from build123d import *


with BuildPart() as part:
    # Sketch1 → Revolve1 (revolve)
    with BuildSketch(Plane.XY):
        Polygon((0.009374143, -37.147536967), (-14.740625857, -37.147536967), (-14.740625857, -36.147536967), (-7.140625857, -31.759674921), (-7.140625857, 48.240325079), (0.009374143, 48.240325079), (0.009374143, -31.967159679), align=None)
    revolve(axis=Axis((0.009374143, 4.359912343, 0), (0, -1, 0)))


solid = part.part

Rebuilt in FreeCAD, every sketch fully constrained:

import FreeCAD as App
import Part
import Sketcher
Q = App.Units.Quantity

doc = App.newDocument("Part")
params = doc.addObject("Spreadsheet::Sheet", "Params")
for row, (alias, value) in enumerate([
    ("sketch1_height", "80 mm"),
    ("sketch1_height2", "1 mm"),
    ("sketch1_width", "14.75 mm"),
    ("sketch1_width2", "7.15 mm"),
    ("revolution_angle", "360 deg"),
], start=1):
    params.set(f"A{row}", alias)
    params.set(f"B{row}", "=" + value)
    params.setAlias(f"B{row}", alias)

body = doc.addObject("PartDesign::Body", "Body")

# Sketch on XY plane
sketch1 = body.newObject("Sketcher::SketchObject", "Sketch")
sketch1.AttachmentSupport = (doc.getObject("XY_Plane"), [""])
sketch1.MapMode = "FlatFace"
sketch1.addGeometry([
    Part.LineSegment(App.Vector(-14.7, -37.1, 0), App.Vector(0, -37.1, 0)),  # 0
    Part.LineSegment(App.Vector(0, -37.1, 0), App.Vector(0, 48.2, 0)),  # 1
    Part.LineSegment(App.Vector(0, 48.2, 0), App.Vector(-7.1, 48.2, 0)),  # 2
    Part.LineSegment(App.Vector(-7.1, 48.2, 0), App.Vector(-7.1, -31.8, 0)),  # 3
    Part.LineSegment(App.Vector(-7.1, -31.8, 0), App.Vector(-14.7, -36.1, 0)),  # 4
    Part.LineSegment(App.Vector(-14.7, -36.1, 0), App.Vector(-14.7, -37.1, 0)),  # 5
], False)
sketch1.addGeometry(Part.LineSegment(App.Vector(0, 48.2, 0), App.Vector(0, -37.1, 0)), True)  # axis
sketch1.addConstraint([
    Sketcher.Constraint("Coincident", 0, 2, 1, 1),
    Sketcher.Constraint("Coincident", 1, 2, 2, 1),
    Sketcher.Constraint("Coincident", 2, 2, 3, 1),
    Sketcher.Constraint("Coincident", 3, 2, 4, 1),
    Sketcher.Constraint("Coincident", 4, 2, 5, 1),
    Sketcher.Constraint("Coincident", 5, 2, 0, 1),
    Sketcher.Constraint("Horizontal", 0),
    Sketcher.Constraint("Vertical", 1),
    Sketcher.Constraint("Horizontal", 2),
    Sketcher.Constraint("Vertical", 3),
    Sketcher.Constraint("Vertical", 5),
    Sketcher.Constraint("Vertical", 6),
    Sketcher.Constraint("Coincident", 6, 1, 1, 2),
    Sketcher.Constraint("Horizontal", 5, 2, 6, 2),
    Sketcher.Constraint("DistanceY", 3, 2, 3, 1, Q("80 mm")),
    Sketcher.Constraint("DistanceY", 5, 2, 5, 1, Q("1 mm")),
    Sketcher.Constraint("Angle", 4, Q("-150 deg")),
    Sketcher.Constraint("DistanceX", 0, 1, 0, 2, Q("14.75 mm")),
    Sketcher.Constraint("DistanceX", 2, 2, 2, 1, Q("7.15 mm")),
    Sketcher.Constraint("DistanceX", -1, 1, 0, 2, Q("0.009374 mm")),
    Sketcher.Constraint("DistanceY", 0, 2, -1, 1, Q("37.147537 mm")),
])
sketch1.setExpression("Constraints[14]", "Params.sketch1_height")
sketch1.setExpression("Constraints[15]", "Params.sketch1_height2")
sketch1.setExpression("Constraints[17]", "Params.sketch1_width")
sketch1.setExpression("Constraints[18]", "Params.sketch1_width2")
revolution = body.newObject("PartDesign::Revolution", "Revolution")
revolution.Profile = sketch1
revolution.ReferenceAxis = (sketch1, ["Axis0"])
revolution.setExpression("Angle", "Params.revolution_angle")

doc.recompute()
